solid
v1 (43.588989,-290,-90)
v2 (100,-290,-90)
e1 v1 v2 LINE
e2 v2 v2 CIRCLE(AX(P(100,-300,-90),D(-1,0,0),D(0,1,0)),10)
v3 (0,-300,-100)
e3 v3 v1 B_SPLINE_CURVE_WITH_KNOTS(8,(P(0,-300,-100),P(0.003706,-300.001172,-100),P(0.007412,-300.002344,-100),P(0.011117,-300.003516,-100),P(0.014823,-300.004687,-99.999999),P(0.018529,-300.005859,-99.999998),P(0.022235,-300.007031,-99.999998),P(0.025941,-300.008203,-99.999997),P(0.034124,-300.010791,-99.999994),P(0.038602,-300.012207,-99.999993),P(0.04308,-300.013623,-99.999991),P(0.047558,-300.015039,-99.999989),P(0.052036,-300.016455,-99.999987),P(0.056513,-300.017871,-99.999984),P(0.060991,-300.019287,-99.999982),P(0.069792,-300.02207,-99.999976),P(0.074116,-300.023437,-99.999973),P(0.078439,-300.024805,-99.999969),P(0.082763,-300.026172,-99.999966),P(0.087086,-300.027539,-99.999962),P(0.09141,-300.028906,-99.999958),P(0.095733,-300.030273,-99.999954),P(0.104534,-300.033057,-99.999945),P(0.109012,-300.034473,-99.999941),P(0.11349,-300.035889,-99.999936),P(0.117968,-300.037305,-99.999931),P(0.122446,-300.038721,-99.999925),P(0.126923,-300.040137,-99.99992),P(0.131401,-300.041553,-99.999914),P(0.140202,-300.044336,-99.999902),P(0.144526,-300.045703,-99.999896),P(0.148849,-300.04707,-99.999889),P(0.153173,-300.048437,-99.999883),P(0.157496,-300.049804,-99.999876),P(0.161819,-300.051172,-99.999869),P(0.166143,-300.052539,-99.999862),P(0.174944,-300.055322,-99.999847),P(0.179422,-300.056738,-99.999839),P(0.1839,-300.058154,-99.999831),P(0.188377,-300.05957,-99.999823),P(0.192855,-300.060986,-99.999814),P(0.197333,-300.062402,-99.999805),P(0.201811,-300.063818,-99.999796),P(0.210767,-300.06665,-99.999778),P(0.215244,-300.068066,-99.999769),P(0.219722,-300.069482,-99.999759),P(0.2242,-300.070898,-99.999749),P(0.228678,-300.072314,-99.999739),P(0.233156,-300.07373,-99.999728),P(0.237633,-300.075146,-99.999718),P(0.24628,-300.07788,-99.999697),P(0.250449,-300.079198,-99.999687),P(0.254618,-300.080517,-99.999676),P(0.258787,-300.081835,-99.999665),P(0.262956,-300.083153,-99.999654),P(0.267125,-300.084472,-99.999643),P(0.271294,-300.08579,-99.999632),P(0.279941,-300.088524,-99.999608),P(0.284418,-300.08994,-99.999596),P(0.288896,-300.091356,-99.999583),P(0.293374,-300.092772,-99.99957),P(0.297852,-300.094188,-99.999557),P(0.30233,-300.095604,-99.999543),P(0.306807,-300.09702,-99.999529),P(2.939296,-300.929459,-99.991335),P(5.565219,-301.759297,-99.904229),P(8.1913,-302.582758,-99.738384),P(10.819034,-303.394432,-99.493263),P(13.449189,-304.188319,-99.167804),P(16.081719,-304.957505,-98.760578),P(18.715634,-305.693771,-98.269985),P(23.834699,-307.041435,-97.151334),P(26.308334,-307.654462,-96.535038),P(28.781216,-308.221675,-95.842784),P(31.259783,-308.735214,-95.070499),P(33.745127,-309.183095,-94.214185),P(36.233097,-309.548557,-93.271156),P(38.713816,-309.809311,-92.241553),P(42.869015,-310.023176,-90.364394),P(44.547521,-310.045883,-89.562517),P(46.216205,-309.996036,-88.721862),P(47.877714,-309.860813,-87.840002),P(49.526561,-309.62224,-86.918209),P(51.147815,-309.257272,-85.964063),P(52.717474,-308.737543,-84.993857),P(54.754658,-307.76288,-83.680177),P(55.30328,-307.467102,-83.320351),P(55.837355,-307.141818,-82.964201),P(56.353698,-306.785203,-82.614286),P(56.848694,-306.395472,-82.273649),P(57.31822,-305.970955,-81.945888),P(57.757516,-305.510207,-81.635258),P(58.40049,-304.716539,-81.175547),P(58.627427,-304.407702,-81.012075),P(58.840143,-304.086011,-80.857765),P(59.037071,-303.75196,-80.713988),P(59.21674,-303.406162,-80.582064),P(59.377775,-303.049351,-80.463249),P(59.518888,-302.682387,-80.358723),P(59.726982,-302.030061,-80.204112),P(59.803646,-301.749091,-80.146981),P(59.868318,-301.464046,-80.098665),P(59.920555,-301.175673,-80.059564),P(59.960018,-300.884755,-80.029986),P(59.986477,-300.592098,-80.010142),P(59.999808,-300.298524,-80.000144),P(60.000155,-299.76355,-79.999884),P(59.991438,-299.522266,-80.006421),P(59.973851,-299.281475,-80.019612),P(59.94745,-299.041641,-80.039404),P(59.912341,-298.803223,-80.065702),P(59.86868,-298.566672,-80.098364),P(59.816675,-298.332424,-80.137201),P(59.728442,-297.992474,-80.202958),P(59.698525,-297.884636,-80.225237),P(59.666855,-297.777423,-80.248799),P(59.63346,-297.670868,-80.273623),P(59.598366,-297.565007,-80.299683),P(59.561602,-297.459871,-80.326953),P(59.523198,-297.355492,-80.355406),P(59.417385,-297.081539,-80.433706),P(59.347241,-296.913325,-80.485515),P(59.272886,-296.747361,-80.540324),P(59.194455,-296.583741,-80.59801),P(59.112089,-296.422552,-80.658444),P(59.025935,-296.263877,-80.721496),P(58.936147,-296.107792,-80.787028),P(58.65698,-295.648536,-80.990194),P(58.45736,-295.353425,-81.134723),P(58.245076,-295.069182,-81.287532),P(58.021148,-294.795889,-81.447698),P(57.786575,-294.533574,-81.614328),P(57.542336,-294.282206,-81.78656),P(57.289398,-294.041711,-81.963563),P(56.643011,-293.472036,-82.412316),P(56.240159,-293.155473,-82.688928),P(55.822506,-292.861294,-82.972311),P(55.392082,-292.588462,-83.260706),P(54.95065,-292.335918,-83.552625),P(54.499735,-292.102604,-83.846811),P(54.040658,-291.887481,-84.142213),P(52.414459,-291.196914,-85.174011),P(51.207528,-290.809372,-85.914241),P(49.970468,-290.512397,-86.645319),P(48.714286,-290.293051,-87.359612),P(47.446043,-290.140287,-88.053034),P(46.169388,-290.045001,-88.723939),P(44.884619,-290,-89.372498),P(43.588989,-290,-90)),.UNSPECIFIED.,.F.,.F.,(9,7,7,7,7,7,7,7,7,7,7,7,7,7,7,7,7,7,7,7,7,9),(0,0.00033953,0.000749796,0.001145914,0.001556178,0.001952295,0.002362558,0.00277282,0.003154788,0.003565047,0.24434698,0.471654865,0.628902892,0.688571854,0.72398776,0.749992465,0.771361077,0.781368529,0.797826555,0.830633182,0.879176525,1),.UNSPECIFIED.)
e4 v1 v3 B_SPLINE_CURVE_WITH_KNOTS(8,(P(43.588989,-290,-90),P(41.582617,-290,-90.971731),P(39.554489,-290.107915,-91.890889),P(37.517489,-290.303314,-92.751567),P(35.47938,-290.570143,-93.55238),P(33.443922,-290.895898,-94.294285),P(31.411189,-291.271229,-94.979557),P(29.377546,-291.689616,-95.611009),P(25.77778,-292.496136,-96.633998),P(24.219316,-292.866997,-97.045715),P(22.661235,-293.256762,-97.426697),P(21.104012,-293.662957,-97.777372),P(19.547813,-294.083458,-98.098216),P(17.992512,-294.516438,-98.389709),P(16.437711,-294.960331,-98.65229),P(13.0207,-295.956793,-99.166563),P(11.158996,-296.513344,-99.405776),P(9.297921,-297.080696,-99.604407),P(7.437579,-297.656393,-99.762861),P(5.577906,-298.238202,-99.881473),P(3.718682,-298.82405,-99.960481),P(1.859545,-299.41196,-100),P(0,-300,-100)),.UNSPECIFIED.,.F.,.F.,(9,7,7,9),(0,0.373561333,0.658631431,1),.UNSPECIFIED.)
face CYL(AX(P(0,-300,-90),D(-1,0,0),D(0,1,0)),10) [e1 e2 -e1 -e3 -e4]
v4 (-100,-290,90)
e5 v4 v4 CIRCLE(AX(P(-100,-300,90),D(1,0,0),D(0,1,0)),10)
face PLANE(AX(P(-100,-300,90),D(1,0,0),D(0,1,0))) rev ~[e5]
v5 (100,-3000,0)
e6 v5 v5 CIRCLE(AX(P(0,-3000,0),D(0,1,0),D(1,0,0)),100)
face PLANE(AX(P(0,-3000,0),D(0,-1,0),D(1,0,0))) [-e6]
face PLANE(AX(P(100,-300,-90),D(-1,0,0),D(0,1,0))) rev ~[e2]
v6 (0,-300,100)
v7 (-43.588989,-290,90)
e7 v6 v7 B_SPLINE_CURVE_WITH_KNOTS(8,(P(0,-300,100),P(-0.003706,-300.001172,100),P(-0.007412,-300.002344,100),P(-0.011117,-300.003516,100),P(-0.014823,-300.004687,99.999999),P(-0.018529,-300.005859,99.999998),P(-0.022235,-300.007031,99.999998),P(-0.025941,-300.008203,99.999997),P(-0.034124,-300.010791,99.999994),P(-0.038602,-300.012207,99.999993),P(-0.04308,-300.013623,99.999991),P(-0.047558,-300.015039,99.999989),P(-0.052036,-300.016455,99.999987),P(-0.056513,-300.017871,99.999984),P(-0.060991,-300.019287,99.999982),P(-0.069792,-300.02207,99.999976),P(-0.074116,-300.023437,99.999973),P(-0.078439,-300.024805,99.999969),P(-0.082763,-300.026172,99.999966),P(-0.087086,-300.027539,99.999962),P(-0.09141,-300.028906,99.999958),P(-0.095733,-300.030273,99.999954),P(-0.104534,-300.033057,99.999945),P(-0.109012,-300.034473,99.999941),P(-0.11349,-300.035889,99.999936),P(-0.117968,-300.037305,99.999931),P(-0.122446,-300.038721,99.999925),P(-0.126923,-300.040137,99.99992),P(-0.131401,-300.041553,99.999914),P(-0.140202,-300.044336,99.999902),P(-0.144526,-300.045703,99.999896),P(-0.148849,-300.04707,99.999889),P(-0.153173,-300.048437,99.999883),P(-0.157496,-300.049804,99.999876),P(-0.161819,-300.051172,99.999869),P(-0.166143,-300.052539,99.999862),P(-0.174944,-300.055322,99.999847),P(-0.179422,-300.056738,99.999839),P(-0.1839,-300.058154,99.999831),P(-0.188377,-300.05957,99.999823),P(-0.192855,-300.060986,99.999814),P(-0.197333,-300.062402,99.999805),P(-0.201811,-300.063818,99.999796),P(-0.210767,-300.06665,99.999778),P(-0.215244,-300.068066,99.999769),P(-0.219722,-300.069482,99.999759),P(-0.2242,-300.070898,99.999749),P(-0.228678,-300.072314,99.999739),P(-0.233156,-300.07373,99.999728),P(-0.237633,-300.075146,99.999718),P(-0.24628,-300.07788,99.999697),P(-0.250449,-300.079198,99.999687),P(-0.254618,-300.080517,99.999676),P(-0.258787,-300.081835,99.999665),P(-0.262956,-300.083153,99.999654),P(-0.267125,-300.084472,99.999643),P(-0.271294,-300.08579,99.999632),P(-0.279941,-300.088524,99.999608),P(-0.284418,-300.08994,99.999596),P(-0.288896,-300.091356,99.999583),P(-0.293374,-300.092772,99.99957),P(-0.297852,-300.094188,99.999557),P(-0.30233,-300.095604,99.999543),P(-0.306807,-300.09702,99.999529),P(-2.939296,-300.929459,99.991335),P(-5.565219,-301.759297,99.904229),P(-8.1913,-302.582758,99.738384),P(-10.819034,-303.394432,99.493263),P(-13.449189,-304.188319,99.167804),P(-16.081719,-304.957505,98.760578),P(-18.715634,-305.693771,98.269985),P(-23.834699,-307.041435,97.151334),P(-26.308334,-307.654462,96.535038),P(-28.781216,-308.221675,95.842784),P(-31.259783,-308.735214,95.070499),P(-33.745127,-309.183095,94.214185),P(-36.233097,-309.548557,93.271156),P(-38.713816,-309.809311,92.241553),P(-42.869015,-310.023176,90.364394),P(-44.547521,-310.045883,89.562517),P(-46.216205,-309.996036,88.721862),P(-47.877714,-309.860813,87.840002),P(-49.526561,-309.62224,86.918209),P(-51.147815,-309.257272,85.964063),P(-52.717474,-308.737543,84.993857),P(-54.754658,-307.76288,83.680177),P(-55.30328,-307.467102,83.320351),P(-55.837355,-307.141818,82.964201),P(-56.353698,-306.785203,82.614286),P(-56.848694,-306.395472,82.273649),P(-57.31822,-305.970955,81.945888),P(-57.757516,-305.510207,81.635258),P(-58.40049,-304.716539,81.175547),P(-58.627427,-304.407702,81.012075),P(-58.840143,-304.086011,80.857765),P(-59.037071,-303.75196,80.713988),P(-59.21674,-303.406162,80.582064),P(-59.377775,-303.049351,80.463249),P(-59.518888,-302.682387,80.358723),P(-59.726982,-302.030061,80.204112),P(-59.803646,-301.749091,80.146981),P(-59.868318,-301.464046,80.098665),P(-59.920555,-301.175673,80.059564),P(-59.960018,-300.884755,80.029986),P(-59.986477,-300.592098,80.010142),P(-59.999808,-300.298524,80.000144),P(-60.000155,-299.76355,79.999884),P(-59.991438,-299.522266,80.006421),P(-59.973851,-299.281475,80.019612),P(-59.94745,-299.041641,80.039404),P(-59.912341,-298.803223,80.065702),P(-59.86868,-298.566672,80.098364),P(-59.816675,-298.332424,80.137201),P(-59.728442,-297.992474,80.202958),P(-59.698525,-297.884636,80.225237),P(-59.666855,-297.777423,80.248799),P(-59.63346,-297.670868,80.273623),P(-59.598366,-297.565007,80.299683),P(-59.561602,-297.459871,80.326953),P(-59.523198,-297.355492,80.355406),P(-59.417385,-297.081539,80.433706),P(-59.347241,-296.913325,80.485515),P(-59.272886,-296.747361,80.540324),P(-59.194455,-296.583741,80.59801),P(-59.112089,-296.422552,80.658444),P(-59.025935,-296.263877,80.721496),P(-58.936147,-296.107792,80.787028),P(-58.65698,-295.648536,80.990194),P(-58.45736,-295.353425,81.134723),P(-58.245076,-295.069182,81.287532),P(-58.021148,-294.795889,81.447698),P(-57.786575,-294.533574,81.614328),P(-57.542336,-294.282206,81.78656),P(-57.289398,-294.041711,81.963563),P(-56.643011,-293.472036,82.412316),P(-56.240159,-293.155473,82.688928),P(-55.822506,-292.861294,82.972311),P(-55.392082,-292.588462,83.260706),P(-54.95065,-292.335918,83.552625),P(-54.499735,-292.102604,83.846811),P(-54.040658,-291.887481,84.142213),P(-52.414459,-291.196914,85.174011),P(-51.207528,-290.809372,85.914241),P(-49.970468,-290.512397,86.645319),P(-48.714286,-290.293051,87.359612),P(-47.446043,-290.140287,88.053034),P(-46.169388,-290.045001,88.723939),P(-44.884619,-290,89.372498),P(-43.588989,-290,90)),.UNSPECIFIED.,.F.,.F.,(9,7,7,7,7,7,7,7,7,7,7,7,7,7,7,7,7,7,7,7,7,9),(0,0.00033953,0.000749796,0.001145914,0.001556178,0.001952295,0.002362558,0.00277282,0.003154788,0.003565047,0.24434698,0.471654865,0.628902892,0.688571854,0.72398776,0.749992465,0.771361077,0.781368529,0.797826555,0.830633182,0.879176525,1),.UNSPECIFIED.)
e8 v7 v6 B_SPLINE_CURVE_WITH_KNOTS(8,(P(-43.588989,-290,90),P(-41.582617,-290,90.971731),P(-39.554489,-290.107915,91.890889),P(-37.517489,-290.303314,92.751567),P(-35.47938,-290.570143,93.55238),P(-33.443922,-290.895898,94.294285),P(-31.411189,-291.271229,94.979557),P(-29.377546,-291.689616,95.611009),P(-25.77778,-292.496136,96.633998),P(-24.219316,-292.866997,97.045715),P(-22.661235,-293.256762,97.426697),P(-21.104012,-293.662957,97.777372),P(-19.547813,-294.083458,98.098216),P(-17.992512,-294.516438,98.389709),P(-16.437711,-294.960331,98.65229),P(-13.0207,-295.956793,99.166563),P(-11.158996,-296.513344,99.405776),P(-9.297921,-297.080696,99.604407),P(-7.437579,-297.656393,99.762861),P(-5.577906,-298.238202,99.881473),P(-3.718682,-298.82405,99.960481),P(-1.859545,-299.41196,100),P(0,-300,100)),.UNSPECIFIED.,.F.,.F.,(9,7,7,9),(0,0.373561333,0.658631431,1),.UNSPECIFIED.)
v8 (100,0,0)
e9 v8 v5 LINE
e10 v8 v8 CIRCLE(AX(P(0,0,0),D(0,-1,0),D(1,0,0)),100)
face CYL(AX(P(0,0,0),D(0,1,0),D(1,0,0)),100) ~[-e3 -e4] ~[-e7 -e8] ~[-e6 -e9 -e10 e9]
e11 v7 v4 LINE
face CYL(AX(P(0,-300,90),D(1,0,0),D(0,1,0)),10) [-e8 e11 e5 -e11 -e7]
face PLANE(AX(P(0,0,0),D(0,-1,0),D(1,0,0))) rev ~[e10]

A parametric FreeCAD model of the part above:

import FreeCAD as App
import Part
import Sketcher

doc = App.newDocument("Part")
params = doc.addObject("Spreadsheet::Sheet", "Params")
for row, (alias, value) in enumerate([
    ("sketch1_diameter", "200 mm"),
    ("pad1_length", "3000 mm"),
    ("sketch2_diameter", "20 mm"),
    ("pad2_length", "100 mm"),
], start=1):
    params.set(f"A{row}", alias)
    params.set(f"B{row}", "=" + value)
    params.setAlias(f"B{row}", alias)

body = doc.addObject("PartDesign::Body", "Body")

sketch1 = body.newObject("Sketcher::SketchObject", "Sketch")
sketch1.AttachmentSupport = (doc.getObject("XZ_Plane"), [""])
sketch1.MapMode = "FlatFace"
sketch1.addGeometry(Part.Circle(App.Vector(0, 0, 0), App.Vector(0, 0, 1), 100), False)
sketch1.addConstraint(Sketcher.Constraint("Coincident", 0, 3, -1, 1))
sketch1.addConstraint(Sketcher.Constraint("Diameter", 0, 200.0))
sketch1.setExpression("Constraints[1]", "Params.sketch1_diameter")
pad1 = body.newObject("PartDesign::Pad", "Pad")
pad1.Profile = sketch1
pad1.setExpression("Length", "Params.pad1_length")

sketch2 = body.newObject("Sketcher::SketchObject", "Sketch001")
sketch2.AttachmentSupport = (doc.getObject("YZ_Plane"), [""])
sketch2.MapMode = "FlatFace"
sketch2.addGeometry(Part.Circle(App.Vector(-300, 90, 0), App.Vector(0, 0, 1), 10), False)
sketch2.addConstraint(Sketcher.Constraint("Diameter", 0, 20.0))
sketch2.addConstraint(Sketcher.Constraint("DistanceX", 0, 3, -1, 1, 300.0))
sketch2.addConstraint(Sketcher.Constraint("DistanceY", -1, 1, 0, 3, 90.0))
sketch2.setExpression("Constraints[0]", "Params.sketch2_diameter")
pad2 = body.newObject("PartDesign::Pad", "Pad001")
pad2.Profile = sketch2
pad2.setExpression("Length", "Params.pad2_length")
pad2.Reversed = True
body2 = doc.addObject("PartDesign::Body", "Body001")
doc.recompute()

body2.BaseFeature = body
doc.recompute()

body.Placement = App.Placement(App.Vector(0, 0, 0), App.Rotation(App.Vector(0, 1, 0), 180))
boolean = body2.newObject("PartDesign::Boolean", "Boolean")
boolean.Type = "Fuse"
boolean.addObjects([body])

doc.recompute()
